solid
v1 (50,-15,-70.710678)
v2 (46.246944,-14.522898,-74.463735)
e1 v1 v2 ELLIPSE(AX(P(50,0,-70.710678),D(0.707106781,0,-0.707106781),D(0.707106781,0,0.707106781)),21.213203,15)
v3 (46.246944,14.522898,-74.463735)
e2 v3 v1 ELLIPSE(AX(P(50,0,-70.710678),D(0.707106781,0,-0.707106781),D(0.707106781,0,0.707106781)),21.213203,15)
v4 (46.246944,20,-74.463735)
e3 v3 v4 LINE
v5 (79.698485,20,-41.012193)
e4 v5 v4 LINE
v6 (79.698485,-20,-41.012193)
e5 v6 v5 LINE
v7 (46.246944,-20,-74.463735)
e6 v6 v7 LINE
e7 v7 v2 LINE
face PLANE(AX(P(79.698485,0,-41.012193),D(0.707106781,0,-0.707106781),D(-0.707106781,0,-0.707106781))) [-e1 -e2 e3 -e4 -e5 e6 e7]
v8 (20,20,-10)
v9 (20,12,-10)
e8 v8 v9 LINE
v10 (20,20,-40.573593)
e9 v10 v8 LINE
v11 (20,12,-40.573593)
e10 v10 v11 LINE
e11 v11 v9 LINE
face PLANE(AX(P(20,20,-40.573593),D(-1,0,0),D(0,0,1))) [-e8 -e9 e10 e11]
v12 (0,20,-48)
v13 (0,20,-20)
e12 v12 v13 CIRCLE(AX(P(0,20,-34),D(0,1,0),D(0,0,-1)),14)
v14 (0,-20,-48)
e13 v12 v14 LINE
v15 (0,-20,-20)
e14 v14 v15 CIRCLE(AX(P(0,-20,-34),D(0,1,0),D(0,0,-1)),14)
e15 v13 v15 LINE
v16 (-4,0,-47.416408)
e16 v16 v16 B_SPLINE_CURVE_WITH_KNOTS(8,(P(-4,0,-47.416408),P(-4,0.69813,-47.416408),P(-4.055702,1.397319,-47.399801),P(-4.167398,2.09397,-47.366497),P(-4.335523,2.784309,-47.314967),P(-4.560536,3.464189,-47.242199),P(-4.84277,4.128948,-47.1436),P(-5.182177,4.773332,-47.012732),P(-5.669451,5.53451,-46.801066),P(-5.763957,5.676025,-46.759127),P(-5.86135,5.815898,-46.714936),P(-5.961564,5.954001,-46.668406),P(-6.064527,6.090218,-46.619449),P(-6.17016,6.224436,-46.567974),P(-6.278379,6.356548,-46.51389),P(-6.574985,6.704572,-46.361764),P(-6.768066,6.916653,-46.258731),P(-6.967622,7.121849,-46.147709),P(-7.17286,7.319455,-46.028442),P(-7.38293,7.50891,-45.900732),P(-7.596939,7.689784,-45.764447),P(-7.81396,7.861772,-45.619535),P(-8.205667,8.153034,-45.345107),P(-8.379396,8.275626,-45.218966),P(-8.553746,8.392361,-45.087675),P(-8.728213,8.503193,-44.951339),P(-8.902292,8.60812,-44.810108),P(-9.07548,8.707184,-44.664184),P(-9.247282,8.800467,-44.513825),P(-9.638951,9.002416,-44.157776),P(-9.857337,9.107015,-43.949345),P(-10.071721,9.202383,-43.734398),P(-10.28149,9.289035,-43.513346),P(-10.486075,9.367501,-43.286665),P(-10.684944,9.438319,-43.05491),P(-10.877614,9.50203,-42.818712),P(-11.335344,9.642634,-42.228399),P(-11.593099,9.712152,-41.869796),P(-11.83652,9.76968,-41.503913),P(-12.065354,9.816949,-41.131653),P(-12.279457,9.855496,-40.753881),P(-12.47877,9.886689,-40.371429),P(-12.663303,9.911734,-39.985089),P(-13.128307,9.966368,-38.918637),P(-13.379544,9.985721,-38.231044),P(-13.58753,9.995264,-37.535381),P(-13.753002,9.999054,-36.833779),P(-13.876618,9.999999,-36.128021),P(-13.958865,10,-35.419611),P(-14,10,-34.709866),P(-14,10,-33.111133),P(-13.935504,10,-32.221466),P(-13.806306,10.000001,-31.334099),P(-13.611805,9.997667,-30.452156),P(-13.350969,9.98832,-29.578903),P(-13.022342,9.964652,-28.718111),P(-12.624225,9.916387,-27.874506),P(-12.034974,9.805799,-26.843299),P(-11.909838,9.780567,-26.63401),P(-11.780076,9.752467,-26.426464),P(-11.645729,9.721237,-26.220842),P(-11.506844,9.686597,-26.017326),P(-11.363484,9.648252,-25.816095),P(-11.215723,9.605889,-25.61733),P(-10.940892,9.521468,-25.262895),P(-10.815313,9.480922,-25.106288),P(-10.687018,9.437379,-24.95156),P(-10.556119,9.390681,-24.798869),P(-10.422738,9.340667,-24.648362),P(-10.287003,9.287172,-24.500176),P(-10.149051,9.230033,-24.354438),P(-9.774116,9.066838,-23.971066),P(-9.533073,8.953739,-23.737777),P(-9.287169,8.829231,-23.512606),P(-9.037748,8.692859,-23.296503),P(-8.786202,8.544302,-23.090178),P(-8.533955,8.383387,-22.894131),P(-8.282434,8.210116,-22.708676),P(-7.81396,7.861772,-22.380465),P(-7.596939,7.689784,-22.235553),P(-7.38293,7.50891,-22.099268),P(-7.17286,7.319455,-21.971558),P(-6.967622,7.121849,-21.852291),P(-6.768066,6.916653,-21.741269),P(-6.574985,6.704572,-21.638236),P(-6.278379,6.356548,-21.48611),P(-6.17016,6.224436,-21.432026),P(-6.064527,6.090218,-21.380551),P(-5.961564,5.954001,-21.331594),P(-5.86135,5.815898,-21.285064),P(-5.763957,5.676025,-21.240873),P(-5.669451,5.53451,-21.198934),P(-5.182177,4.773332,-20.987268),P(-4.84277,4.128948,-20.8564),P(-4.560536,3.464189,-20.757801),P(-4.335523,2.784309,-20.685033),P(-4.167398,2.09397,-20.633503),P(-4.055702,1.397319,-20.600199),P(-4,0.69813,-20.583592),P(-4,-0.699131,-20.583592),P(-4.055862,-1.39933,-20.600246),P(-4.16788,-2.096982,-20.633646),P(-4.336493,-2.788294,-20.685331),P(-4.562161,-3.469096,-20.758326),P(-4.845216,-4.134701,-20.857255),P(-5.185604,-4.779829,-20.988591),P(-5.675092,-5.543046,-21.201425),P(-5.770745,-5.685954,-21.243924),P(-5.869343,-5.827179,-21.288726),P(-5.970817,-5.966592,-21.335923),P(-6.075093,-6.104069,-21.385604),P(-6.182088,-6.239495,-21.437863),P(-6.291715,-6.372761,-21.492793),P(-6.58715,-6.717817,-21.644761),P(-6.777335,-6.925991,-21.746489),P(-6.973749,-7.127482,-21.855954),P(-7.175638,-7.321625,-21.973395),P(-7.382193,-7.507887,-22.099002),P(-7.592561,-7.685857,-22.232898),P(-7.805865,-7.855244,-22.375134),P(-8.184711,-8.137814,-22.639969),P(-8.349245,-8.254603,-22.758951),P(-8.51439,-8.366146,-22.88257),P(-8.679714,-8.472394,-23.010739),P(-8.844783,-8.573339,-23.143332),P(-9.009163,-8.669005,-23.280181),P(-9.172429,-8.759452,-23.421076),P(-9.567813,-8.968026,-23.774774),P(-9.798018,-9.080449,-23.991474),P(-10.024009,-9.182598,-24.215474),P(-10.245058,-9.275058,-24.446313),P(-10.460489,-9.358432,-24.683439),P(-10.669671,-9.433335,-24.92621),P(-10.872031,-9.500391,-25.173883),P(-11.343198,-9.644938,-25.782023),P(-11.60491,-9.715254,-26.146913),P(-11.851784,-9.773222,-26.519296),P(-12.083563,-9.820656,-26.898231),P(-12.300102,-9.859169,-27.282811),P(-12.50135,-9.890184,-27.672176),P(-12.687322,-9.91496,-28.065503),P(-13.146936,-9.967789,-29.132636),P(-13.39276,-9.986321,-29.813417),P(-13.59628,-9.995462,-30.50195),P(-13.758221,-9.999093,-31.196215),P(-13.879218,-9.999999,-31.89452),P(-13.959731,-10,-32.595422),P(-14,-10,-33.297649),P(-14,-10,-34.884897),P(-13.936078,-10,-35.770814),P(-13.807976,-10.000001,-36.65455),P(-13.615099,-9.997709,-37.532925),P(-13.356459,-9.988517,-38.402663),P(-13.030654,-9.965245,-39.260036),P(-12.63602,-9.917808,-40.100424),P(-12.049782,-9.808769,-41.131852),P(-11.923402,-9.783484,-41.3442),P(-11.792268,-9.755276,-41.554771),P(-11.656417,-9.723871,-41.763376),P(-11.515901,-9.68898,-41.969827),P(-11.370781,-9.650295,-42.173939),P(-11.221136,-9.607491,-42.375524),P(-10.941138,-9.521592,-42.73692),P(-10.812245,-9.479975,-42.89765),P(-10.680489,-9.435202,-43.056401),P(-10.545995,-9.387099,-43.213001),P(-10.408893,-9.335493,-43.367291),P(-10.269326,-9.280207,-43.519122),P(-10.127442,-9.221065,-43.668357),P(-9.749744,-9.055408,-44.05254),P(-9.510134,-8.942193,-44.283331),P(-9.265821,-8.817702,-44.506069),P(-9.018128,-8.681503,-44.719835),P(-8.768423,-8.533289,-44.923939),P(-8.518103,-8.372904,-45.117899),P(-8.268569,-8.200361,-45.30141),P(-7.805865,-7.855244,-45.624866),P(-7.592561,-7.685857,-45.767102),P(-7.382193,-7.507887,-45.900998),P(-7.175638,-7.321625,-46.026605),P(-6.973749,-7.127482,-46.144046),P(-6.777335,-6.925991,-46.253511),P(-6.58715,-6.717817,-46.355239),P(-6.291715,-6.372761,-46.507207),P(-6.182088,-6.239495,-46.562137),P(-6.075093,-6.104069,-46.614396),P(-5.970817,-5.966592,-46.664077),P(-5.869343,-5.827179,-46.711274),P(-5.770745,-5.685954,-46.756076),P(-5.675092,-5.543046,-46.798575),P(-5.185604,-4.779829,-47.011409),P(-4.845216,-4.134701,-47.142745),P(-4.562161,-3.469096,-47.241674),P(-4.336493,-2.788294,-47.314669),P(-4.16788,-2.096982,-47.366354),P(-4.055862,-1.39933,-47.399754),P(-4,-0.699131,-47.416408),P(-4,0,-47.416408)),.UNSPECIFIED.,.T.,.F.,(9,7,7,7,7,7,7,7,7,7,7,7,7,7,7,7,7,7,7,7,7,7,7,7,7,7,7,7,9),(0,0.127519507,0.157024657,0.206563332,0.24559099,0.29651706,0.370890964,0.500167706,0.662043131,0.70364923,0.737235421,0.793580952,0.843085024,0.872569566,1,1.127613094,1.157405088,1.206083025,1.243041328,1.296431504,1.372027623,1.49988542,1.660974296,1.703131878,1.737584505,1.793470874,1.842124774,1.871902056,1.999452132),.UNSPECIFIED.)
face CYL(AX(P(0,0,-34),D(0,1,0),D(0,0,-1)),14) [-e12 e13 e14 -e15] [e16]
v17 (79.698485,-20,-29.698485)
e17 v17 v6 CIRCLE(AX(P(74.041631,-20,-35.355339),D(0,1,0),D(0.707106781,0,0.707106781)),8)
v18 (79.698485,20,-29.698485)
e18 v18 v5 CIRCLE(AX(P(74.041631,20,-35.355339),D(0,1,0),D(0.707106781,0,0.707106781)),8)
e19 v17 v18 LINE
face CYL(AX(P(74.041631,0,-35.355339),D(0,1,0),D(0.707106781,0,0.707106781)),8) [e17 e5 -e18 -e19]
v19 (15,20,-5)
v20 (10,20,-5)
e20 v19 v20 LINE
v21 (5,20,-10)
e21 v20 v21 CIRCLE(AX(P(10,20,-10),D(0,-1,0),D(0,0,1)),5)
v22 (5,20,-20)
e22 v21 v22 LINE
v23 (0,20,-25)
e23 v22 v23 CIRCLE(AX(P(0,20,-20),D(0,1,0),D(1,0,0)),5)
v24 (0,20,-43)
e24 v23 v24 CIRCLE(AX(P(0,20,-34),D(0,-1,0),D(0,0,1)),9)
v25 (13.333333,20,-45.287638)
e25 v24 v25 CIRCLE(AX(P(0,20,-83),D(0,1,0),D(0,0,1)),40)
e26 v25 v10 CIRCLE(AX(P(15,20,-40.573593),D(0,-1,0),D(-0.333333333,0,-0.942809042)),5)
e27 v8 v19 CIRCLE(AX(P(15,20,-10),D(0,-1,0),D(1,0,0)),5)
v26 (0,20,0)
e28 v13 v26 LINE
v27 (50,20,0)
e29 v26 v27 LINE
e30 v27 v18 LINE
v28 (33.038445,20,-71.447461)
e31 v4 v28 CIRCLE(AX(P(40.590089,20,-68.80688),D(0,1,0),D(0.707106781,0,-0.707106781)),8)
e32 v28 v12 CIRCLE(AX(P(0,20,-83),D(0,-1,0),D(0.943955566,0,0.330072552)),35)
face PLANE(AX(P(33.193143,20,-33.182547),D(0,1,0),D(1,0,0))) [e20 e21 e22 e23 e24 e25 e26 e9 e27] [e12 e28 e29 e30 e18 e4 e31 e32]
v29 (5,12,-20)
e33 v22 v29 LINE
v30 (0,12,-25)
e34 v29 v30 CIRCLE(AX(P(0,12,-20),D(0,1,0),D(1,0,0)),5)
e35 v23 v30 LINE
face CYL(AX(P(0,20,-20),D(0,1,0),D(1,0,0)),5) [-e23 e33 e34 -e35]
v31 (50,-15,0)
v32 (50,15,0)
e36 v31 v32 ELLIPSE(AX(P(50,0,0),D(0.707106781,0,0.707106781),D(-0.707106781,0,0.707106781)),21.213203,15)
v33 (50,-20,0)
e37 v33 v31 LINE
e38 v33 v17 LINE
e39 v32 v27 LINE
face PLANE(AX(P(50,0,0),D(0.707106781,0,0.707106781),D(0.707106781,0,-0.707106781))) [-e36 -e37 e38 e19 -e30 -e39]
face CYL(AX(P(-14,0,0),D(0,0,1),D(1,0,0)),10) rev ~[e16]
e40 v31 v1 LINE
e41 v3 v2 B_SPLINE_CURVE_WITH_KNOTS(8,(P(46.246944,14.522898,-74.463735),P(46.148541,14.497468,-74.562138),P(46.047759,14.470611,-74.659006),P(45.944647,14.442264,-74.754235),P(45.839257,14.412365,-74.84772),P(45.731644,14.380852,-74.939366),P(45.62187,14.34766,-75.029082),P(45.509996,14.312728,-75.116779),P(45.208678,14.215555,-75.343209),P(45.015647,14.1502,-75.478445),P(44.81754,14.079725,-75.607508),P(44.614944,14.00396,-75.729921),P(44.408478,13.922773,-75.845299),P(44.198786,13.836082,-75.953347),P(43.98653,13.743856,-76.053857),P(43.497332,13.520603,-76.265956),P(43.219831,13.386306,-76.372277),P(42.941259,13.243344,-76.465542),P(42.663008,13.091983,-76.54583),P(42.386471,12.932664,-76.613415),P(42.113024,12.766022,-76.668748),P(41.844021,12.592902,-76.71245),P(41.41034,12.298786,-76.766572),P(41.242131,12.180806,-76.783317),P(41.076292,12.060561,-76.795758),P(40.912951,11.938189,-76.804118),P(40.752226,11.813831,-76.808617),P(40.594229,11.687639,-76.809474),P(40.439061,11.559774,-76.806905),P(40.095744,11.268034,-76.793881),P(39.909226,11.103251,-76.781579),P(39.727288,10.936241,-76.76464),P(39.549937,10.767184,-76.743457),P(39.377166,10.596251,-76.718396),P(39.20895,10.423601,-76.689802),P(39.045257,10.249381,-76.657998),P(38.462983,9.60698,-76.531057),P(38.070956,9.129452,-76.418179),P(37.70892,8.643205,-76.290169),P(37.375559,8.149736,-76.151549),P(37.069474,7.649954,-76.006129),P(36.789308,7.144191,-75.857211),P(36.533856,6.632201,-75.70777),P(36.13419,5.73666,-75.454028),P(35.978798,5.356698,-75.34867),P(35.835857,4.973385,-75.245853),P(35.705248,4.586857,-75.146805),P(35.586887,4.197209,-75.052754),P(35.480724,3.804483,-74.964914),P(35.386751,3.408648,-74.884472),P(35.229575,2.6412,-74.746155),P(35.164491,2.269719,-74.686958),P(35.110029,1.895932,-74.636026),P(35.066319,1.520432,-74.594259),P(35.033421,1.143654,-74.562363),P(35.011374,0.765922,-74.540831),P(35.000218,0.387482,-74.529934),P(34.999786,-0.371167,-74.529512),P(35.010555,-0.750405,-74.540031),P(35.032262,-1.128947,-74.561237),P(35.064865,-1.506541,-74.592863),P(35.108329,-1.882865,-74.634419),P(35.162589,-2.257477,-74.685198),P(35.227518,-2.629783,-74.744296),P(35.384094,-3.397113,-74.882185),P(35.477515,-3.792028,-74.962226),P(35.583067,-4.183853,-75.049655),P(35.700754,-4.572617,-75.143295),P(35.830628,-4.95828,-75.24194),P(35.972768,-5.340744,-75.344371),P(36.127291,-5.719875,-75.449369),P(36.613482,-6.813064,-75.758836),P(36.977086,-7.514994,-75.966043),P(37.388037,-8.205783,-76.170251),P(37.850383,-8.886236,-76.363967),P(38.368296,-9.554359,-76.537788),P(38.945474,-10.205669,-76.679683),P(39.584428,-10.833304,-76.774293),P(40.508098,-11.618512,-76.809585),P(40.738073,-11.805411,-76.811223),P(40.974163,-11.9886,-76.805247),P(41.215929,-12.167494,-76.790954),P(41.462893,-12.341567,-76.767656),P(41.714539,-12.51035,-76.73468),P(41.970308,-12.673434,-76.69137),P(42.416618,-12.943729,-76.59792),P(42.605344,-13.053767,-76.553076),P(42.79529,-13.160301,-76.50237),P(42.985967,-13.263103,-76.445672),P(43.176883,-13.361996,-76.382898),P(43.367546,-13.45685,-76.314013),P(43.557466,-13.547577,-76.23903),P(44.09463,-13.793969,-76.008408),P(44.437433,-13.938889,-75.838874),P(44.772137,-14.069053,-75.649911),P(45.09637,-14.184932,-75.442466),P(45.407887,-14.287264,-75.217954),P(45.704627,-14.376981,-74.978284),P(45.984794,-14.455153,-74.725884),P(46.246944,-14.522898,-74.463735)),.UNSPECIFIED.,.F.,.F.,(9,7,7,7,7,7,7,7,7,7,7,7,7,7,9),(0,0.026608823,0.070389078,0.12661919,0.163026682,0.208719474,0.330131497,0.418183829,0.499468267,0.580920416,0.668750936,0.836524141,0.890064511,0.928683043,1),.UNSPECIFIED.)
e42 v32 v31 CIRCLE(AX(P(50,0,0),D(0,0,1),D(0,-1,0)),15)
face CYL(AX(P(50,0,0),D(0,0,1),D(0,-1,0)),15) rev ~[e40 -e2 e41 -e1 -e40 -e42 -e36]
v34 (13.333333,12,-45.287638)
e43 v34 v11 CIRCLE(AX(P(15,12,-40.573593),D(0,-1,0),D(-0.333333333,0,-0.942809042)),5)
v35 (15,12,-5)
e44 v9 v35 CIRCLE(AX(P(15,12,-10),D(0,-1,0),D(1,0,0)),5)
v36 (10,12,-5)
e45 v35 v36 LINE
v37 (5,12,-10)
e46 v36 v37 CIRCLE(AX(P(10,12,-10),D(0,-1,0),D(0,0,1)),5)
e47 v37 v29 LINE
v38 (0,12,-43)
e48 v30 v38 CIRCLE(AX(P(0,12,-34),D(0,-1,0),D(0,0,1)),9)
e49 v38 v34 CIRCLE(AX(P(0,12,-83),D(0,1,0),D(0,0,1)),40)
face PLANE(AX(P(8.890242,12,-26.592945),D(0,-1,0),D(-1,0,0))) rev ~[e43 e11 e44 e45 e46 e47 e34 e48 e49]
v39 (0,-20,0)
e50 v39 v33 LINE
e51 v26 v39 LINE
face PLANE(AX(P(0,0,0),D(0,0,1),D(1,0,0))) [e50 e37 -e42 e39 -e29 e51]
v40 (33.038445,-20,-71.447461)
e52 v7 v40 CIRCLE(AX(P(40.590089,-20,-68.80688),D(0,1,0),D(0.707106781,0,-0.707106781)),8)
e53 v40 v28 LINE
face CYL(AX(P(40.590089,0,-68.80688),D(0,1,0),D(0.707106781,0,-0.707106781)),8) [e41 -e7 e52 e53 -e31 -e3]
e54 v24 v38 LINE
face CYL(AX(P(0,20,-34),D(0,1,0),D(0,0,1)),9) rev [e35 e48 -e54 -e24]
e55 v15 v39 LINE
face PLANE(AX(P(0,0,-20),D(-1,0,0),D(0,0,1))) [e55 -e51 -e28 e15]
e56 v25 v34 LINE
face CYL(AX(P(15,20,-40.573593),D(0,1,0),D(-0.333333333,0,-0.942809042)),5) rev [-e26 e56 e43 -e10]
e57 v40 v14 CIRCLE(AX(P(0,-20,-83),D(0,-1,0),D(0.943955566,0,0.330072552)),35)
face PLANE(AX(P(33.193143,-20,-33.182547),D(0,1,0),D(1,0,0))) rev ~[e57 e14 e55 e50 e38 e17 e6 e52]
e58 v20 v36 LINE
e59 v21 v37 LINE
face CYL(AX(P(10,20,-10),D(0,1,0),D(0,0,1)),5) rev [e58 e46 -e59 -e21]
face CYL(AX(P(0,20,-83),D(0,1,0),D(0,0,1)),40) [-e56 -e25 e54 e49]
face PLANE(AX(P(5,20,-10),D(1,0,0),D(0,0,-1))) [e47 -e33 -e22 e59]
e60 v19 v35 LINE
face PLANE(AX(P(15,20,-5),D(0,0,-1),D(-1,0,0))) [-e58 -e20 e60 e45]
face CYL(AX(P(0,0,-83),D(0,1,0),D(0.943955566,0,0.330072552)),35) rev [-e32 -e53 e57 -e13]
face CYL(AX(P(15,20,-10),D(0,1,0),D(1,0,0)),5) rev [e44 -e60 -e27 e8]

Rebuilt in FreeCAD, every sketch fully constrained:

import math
import FreeCAD as App
import Part
import Sketcher
Q = App.Units.Quantity

doc = App.newDocument("Part")
body = doc.addObject("PartDesign::Body", "Body")

sketch1 = body.newObject("Sketcher::SketchObject", "Sketch")
sketch1.AttachmentSupport = (doc.getObject("XZ_Plane"), [""])
sketch1.MapMode = "FlatFace"
sketch1.addGeometry([
    Part.LineSegment(App.Vector(0, 0, 0), App.Vector(50, 0, 0)),
    Part.LineSegment(App.Vector(50, 0, 0), App.Vector(80, -30, 0)),
    Part.ArcOfCircle(Part.Circle(App.Vector(74, -35, 0), App.Vector(0, 0, 1), 8), math.radians(-45), math.radians(45)),
    Part.LineSegment(App.Vector(80, -41, 0), App.Vector(46, -74, 0)),
    Part.ArcOfCircle(Part.Circle(App.Vector(41, -69, 0), App.Vector(0, 0, 1), 8), math.radians(-161), math.radians(-45)),
    Part.ArcOfCircle(Part.Circle(App.Vector(0, -83, 0), App.Vector(0, 0, 1), 35), math.radians(19), math.radians(90)),
    Part.ArcOfCircle(Part.Circle(App.Vector(0, -34, 0), App.Vector(0, 0, 1), 14), math.radians(90), math.radians(270)),
    Part.LineSegment(App.Vector(0, -20, 0), App.Vector(0, 0, 0)),
], False)
sketch1.addConstraint([
    Sketcher.Constraint("Coincident", 0, 2, 1, 1),
    Sketcher.Constraint("Tangent", 1, 2, 2, 2),
    Sketcher.Constraint("Tangent", 2, 1, 3, 1),
    Sketcher.Constraint("Tangent", 3, 2, 4, 2),
    Sketcher.Constraint("Tangent", 4, 1, 5, 1),
    Sketcher.Constraint("Tangent", 5, 2, 6, 2),
    Sketcher.Constraint("Coincident", 6, 1, 7, 1),
    Sketcher.Constraint("Coincident", 7, 2, 0, 1),
    Sketcher.Constraint("Horizontal", 0),
    Sketcher.Constraint("Vertical", 7),
    Sketcher.Constraint("Coincident", 7, 2, -1, 1),
    Sketcher.Constraint("Equal", 2, 4),
    Sketcher.Constraint("PointOnObject", 5, 3, -2),
    Sketcher.Constraint("PointOnObject", 6, 3, -2),
    Sketcher.Constraint("Perpendicular", 1, 3),
    Sketcher.Constraint("Vertical", 1, 2, 2, 1),
    Sketcher.Constraint("Radius", 2, Q("8 mm")),
    Sketcher.Constraint("Radius", 5, Q("35 mm")),
    Sketcher.Constraint("Radius", 6, Q("14 mm")),
    Sketcher.Constraint("DistanceX", 0, 1, 0, 2, Q("50 mm")),
    Sketcher.Constraint("DistanceY", 7, 1, 7, 2, Q("20 mm")),
    Sketcher.Constraint("Distance", 1, Q("42 mm")),
])
pad1 = body.newObject("PartDesign::Pad", "Pad")
pad1.Profile = sketch1
pad1.Length = 40
pad1.Midplane = True

sketch2 = body.newObject("Sketcher::SketchObject", "Sketch001")
sketch2.AttachmentSupport = (doc.getObject("XZ_Plane"), [""])
sketch2.MapMode = "FlatFace"
sketch2.AttachmentOffset = App.Placement(App.Vector(0, 0, -20), App.Rotation())
sketch2.addGeometry([
    Part.LineSegment(App.Vector(20, -10, 0), App.Vector(20, -41, 0)),
    Part.ArcOfCircle(Part.Circle(App.Vector(15, -41, 0), App.Vector(0, 0, 1), 5), math.radians(-109), math.radians(0)),
    Part.ArcOfCircle(Part.Circle(App.Vector(0, -83, 0), App.Vector(0, 0, 1), 40), math.radians(70.53), math.radians(90)),
    Part.ArcOfCircle(Part.Circle(App.Vector(0, -34, 0), App.Vector(0, 0, 1), 9), math.radians(90), math.radians(270)),
    Part.ArcOfCircle(Part.Circle(App.Vector(0, -20, 0), App.Vector(0, 0, 1), 5), math.radians(-90), math.radians(0)),
    Part.LineSegment(App.Vector(5, -20, 0), App.Vector(5, -10, 0)),
    Part.ArcOfCircle(Part.Circle(App.Vector(10, -10, 0), App.Vector(0, 0, 1), 5), math.radians(90), math.radians(180)),
    Part.LineSegment(App.Vector(10, -5, 0), App.Vector(15, -5, 0)),
    Part.ArcOfCircle(Part.Circle(App.Vector(15, -10, 0), App.Vector(0, 0, 1), 5), math.radians(0), math.radians(90)),
], False)
sketch2.addConstraint([
    Sketcher.Constraint("Tangent", 0, 2, 1, 2),
    Sketcher.Constraint("Tangent", 1, 1, 2, 1),
    Sketcher.Constraint("Tangent", 2, 2, 3, 2),
    Sketcher.Constraint("Tangent", 3, 1, 4, 1),
    Sketcher.Constraint("Tangent", 4, 2, 5, 1),
    Sketcher.Constraint("Tangent", 5, 2, 6, 2),
    Sketcher.Constraint("Tangent", 6, 1, 7, 1),
    Sketcher.Constraint("Tangent", 7, 2, 8, 2),
    Sketcher.Constraint("Tangent", 8, 1, 0, 1),
    Sketcher.Constraint("Vertical", 0),
    Sketcher.Constraint("Vertical", 5),
    Sketcher.Constraint("Horizontal", 7),
    Sketcher.Constraint("Equal", 1, 4),
    Sketcher.Constraint("Equal", 4, 6),
    Sketcher.Constraint("Equal", 6, 8),
    Sketcher.Constraint("PointOnObject", 2, 3, -2),
    Sketcher.Constraint("PointOnObject", 3, 3, -2),
    Sketcher.Constraint("PointOnObject", 4, 3, -2),
    Sketcher.Constraint("Radius", 1, Q("5 mm")),
    Sketcher.Constraint("Radius", 2, Q("40 mm")),
    Sketcher.Constraint("Radius", 3, Q("9 mm")),
    Sketcher.Constraint("DistanceX", 7, 1, 7, 2, Q("5 mm")),
    Sketcher.Constraint("DistanceY", 5, 1, 5, 2, Q("10 mm")),
    Sketcher.Constraint("DistanceY", 2, 3, -1, 1, Q("83 mm")),
])
pocket1 = body.newObject("PartDesign::Pocket", "Pocket")
pocket1.Profile = sketch2
pocket1.Length = 8
pocket1.Reversed = True

sketch3 = body.newObject("Sketcher::SketchObject", "Sketch002")
sketch3.AttachmentSupport = (doc.getObject("XY_Plane"), [""])
sketch3.MapMode = "FlatFace"
sketch3.addGeometry([
    Part.Circle(App.Vector(50, 0, 0), App.Vector(0, 0, 1), 15),
    Part.Circle(App.Vector(-14, 0, 0), App.Vector(0, 0, 1), 10),
], False)
sketch3.addConstraint([
    Sketcher.Constraint("PointOnObject", 0, 3, -1),
    Sketcher.Constraint("PointOnObject", 1, 3, -1),
    Sketcher.Constraint("Diameter", 0, Q("30 mm")),
    Sketcher.Constraint("Diameter", 1, Q("20 mm")),
    Sketcher.Constraint("DistanceX", -1, 1, 0, 3, Q("50 mm")),
    Sketcher.Constraint("DistanceX", 1, 3, -1, 1, Q("14 mm")),
])
pocket2 = body.newObject("PartDesign::Pocket", "Pocket001")
pocket2.Profile = sketch3
pocket2.Type = "ThroughAll"

doc.recompute()
